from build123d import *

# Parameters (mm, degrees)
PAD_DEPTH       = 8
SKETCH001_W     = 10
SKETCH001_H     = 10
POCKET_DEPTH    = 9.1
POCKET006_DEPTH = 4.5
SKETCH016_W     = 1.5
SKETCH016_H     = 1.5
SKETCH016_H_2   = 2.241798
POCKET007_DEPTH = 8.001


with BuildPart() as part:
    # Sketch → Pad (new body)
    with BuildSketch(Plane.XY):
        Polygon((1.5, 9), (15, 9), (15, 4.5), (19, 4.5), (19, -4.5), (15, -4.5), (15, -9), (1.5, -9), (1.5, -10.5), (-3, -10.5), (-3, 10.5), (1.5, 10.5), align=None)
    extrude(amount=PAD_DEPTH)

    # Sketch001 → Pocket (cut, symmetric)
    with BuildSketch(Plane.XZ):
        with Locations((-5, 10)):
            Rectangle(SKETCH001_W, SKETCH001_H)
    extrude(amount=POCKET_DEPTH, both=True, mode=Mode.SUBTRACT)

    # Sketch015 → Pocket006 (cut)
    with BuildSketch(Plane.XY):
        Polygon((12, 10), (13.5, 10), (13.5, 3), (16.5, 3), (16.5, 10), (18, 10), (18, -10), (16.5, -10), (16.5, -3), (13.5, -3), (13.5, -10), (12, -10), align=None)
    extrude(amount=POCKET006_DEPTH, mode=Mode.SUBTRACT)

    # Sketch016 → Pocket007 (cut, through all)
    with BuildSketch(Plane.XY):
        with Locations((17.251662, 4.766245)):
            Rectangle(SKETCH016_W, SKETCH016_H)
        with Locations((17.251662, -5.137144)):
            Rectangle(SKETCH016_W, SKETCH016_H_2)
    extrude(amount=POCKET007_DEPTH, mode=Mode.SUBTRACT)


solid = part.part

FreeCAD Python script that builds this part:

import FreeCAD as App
import Part
import Sketcher

V = App.Vector


def add_polygon(sketch, points):
    """Adds a closed chain of lines whose ends are joined by coincident constraints."""
    first, n = sketch.GeometryCount, len(points)
    for a, b in zip(points, points[1:] + points[:1]):
        sketch.addGeometry(Part.LineSegment(App.Vector(*a, 0), App.Vector(*b, 0)), False)
    for i in range(n):
        sketch.addConstraint(Sketcher.Constraint("Coincident", first + i, 2, first + (i + 1) % n, 1))

doc = App.newDocument("Part")
params = doc.addObject("Spreadsheet::Sheet", "Params")
for row, (alias, value) in enumerate([
    ("sketch1_width", "4 mm"),
    ("sketch1_height", "21 mm"),
    ("sketch1_height2", "9 mm"),
    ("sketch1_width2", "13.5 mm"),
    ("sketch1_width3", "4.5 mm"),
    ("pad1_length", "8 mm"),
    ("sketch2_width", "10 mm"),
    ("pocket1_length", "18.2 mm"),
    ("sketch3_width", "3 mm"),
    ("sketch3_height", "20 mm"),
    ("sketch3_height2", "7 mm"),
    ("sketch3_width2", "1.5 mm"),
    ("pocket2_length", "4.5 mm"),
    ("sketch4_width", "1.5 mm"),
], start=1):
    params.set(f"A{row}", alias)
    params.set(f"B{row}", "=" + value)
    params.setAlias(f"B{row}", alias)

body = doc.addObject("PartDesign::Body", "Body")

sketch1 = body.newObject("Sketcher::SketchObject", "Sketch")
sketch1.AttachmentSupport = (doc.getObject("XY_Plane"), [""])
sketch1.MapMode = "FlatFace"
add_polygon(sketch1, [(15, 9), (1.5, 9), (1.5, 10.5), (-3, 10.5), (-3, -10.5), (1.5, -10.5), (1.5, -9), (15, -9), (15, -4.5), (19, -4.5), (19, 4.5), (15, 4.5)])
sketch1.addConstraint([
    Sketcher.Constraint("Horizontal", 0),
    Sketcher.Constraint("Vertical", 1),
    Sketcher.Constraint("Horizontal", 2),
    Sketcher.Constraint("Vertical", 3),
    Sketcher.Constraint("Horizontal", 4),
    Sketcher.Constraint("Vertical", 5),
    Sketcher.Constraint("Horizontal", 6),
    Sketcher.Constraint("Vertical", 7),
    Sketcher.Constraint("Horizontal", 8),
    Sketcher.Constraint("Vertical", 9),
    Sketcher.Constraint("Horizontal", 10),
    Sketcher.Constraint("Vertical", 11),
    Sketcher.Constraint("Symmetric", 1, 2, 4, 2, -1),
    Sketcher.Constraint("Symmetric", 7, 2, 10, 2, -1),
    Sketcher.Constraint("Equal", 1, 5),
    Sketcher.Constraint("Equal", 4, 7),
    Sketcher.Constraint("DistanceX", 8, 1, 8, 2, 4.0),
    Sketcher.Constraint("DistanceY", 3, 2, 3, 1, 21.0),
    Sketcher.Constraint("DistanceY", 9, 1, 9, 2, 9.0),
    Sketcher.Constraint("DistanceX", 0, 2, 0, 1, 13.5),
    Sketcher.Constraint("DistanceX", 2, 2, 2, 1, 4.5),
    Sketcher.Constraint("DistanceX", 2, 2, -1, 1, 3.0),
])
sketch1.setExpression("Constraints[28]", "Params.sketch1_width")
sketch1.setExpression("Constraints[29]", "Params.sketch1_height")
sketch1.setExpression("Constraints[30]", "Params.sketch1_height2")
sketch1.setExpression("Constraints[31]", "Params.sketch1_width2")
sketch1.setExpression("Constraints[32]", "Params.sketch1_width3")
pad1 = body.newObject("PartDesign::Pad", "Pad")
pad1.Profile = sketch1
pad1.setExpression("Length", "Params.pad1_length")

sketch2 = body.newObject("Sketcher::SketchObject", "Sketch001")
sketch2.AttachmentSupport = (doc.getObject("XZ_Plane"), [""])
sketch2.MapMode = "FlatFace"
add_polygon(sketch2, [(-10, 15), (-10, 5), (0, 5), (0, 15)])
sketch2.addConstraint([
    Sketcher.Constraint("Vertical", 0),
    Sketcher.Constraint("Horizontal", 1),
    Sketcher.Constraint("Vertical", 2),
    Sketcher.Constraint("Horizontal", 3),
    Sketcher.Constraint("PointOnObject", 1, 2, -2),
    Sketcher.Constraint("Equal", 3, 0),
    Sketcher.Constraint("DistanceX", 1, 1, 1, 2, 10.0),
    Sketcher.Constraint("DistanceY", -1, 1, 0, 2, 5.0),
])
sketch2.setExpression("Constraints[10]", "Params.sketch2_width")
pocket1 = body.newObject("PartDesign::Pocket", "Pocket")
pocket1.Profile = sketch2
pocket1.setExpression("Length", "Params.pocket1_length")
pocket1.Midplane = True

sketch3 = body.newObject("Sketcher::SketchObject", "Sketch002")
sketch3.AttachmentSupport = (doc.getObject("XY_Plane"), [""])
sketch3.MapMode = "FlatFace"
add_polygon(sketch3, [(13.5, 10), (12, 10), (12, -10), (13.5, -10), (13.5, -3), (16.5, -3), (16.5, -10), (18, -10), (18, 10), (16.5, 10), (16.5, 3), (13.5, 3)])
sketch3.addConstraint([
    Sketcher.Constraint("Horizontal", 0),
    Sketcher.Constraint("Vertical", 1),
    Sketcher.Constraint("Horizontal", 2),
    Sketcher.Constraint("Vertical", 3),
    Sketcher.Constraint("Horizontal", 4),
    Sketcher.Constraint("Vertical", 5),
    Sketcher.Constraint("Horizontal", 6),
    Sketcher.Constraint("Vertical", 7),
    Sketcher.Constraint("Horizontal", 8),
    Sketcher.Constraint("Vertical", 9),
    Sketcher.Constraint("Horizontal", 10),
    Sketcher.Constraint("Vertical", 11),
    Sketcher.Constraint("Symmetric", 5, 2, 8, 2, -1),
    Sketcher.Constraint("Symmetric", 3, 2, 10, 2, -1),
    Sketcher.Constraint("Horizontal", 2, 2, 5, 2),
    Sketcher.Constraint("Horizontal", 0, 2, 7, 2),
    Sketcher.Constraint("Equal", 2, 6),
    Sketcher.Constraint("DistanceX", 4, 1, 4, 2, 3.0),
    Sketcher.Constraint("DistanceY", 1, 2, 1, 1, 20.0),
    Sketcher.Constraint("DistanceY", 3, 1, 3, 2, 7.0),
    Sketcher.Constraint("DistanceX", 0, 2, 0, 1, 1.5),
    Sketcher.Constraint("DistanceX", -1, 1, 0, 2, 12.0),
])
sketch3.setExpression("Constraints[29]", "Params.sketch3_width")
sketch3.setExpression("Constraints[30]", "Params.sketch3_height")
sketch3.setExpression("Constraints[31]", "Params.sketch3_height2")
sketch3.setExpression("Constraints[32]", "Params.sketch3_width2")
pocket2 = body.newObject("PartDesign::Pocket", "Pocket001")
pocket2.Profile = sketch3
pocket2.setExpression("Length", "Params.pocket2_length")
pocket2.Reversed = True

sketch4 = body.newObject("Sketcher::SketchObject", "Sketch003")
sketch4.AttachmentSupport = (doc.getObject("XY_Plane"), [""])
sketch4.MapMode = "FlatFace"
add_polygon(sketch4, [(16.5, 5.5), (16.5, 4), (18, 4), (18, 5.5)])
add_polygon(sketch4, [(16.5, -4), (16.5, -6.3), (18, -6.3), (18, -4)])
sketch4.addConstraint([
    Sketcher.Constraint("Vertical", 0),
    Sketcher.Constraint("Horizontal", 1),
    Sketcher.Constraint("Vertical", 2),
    Sketcher.Constraint("Horizontal", 3),
    Sketcher.Constraint("Vertical", 4),
    Sketcher.Constraint("Horizontal", 5),
    Sketcher.Constraint("Vertical", 6),
    Sketcher.Constraint("Horizontal", 7),
    Sketcher.Constraint("Symmetric", 1, 2, 6, 2, -1),
    Sketcher.Constraint("Vertical", 3, 2, 4, 2),
    Sketcher.Constraint("Equal", 7, 0),
    Sketcher.Constraint("DistanceX", 1, 1, 1, 2, 1.5),
    Sketcher.Constraint("DistanceY", 4, 2, 4, 1, 2.241798),
    Sketcher.Constraint("DistanceX", -1, 1, 0, 2, 16.501662),
    Sketcher.Constraint("DistanceY", 6, 2, 1, 2, 8.03249),
])
sketch4.setExpression("Constraints[19]", "Params.sketch4_width")
pocket3 = body.newObject("PartDesign::Pocket", "Pocket002")
pocket3.Profile = sketch4
pocket3.Type = "ThroughAll"
pocket3.Reversed = True

doc.recompute()
